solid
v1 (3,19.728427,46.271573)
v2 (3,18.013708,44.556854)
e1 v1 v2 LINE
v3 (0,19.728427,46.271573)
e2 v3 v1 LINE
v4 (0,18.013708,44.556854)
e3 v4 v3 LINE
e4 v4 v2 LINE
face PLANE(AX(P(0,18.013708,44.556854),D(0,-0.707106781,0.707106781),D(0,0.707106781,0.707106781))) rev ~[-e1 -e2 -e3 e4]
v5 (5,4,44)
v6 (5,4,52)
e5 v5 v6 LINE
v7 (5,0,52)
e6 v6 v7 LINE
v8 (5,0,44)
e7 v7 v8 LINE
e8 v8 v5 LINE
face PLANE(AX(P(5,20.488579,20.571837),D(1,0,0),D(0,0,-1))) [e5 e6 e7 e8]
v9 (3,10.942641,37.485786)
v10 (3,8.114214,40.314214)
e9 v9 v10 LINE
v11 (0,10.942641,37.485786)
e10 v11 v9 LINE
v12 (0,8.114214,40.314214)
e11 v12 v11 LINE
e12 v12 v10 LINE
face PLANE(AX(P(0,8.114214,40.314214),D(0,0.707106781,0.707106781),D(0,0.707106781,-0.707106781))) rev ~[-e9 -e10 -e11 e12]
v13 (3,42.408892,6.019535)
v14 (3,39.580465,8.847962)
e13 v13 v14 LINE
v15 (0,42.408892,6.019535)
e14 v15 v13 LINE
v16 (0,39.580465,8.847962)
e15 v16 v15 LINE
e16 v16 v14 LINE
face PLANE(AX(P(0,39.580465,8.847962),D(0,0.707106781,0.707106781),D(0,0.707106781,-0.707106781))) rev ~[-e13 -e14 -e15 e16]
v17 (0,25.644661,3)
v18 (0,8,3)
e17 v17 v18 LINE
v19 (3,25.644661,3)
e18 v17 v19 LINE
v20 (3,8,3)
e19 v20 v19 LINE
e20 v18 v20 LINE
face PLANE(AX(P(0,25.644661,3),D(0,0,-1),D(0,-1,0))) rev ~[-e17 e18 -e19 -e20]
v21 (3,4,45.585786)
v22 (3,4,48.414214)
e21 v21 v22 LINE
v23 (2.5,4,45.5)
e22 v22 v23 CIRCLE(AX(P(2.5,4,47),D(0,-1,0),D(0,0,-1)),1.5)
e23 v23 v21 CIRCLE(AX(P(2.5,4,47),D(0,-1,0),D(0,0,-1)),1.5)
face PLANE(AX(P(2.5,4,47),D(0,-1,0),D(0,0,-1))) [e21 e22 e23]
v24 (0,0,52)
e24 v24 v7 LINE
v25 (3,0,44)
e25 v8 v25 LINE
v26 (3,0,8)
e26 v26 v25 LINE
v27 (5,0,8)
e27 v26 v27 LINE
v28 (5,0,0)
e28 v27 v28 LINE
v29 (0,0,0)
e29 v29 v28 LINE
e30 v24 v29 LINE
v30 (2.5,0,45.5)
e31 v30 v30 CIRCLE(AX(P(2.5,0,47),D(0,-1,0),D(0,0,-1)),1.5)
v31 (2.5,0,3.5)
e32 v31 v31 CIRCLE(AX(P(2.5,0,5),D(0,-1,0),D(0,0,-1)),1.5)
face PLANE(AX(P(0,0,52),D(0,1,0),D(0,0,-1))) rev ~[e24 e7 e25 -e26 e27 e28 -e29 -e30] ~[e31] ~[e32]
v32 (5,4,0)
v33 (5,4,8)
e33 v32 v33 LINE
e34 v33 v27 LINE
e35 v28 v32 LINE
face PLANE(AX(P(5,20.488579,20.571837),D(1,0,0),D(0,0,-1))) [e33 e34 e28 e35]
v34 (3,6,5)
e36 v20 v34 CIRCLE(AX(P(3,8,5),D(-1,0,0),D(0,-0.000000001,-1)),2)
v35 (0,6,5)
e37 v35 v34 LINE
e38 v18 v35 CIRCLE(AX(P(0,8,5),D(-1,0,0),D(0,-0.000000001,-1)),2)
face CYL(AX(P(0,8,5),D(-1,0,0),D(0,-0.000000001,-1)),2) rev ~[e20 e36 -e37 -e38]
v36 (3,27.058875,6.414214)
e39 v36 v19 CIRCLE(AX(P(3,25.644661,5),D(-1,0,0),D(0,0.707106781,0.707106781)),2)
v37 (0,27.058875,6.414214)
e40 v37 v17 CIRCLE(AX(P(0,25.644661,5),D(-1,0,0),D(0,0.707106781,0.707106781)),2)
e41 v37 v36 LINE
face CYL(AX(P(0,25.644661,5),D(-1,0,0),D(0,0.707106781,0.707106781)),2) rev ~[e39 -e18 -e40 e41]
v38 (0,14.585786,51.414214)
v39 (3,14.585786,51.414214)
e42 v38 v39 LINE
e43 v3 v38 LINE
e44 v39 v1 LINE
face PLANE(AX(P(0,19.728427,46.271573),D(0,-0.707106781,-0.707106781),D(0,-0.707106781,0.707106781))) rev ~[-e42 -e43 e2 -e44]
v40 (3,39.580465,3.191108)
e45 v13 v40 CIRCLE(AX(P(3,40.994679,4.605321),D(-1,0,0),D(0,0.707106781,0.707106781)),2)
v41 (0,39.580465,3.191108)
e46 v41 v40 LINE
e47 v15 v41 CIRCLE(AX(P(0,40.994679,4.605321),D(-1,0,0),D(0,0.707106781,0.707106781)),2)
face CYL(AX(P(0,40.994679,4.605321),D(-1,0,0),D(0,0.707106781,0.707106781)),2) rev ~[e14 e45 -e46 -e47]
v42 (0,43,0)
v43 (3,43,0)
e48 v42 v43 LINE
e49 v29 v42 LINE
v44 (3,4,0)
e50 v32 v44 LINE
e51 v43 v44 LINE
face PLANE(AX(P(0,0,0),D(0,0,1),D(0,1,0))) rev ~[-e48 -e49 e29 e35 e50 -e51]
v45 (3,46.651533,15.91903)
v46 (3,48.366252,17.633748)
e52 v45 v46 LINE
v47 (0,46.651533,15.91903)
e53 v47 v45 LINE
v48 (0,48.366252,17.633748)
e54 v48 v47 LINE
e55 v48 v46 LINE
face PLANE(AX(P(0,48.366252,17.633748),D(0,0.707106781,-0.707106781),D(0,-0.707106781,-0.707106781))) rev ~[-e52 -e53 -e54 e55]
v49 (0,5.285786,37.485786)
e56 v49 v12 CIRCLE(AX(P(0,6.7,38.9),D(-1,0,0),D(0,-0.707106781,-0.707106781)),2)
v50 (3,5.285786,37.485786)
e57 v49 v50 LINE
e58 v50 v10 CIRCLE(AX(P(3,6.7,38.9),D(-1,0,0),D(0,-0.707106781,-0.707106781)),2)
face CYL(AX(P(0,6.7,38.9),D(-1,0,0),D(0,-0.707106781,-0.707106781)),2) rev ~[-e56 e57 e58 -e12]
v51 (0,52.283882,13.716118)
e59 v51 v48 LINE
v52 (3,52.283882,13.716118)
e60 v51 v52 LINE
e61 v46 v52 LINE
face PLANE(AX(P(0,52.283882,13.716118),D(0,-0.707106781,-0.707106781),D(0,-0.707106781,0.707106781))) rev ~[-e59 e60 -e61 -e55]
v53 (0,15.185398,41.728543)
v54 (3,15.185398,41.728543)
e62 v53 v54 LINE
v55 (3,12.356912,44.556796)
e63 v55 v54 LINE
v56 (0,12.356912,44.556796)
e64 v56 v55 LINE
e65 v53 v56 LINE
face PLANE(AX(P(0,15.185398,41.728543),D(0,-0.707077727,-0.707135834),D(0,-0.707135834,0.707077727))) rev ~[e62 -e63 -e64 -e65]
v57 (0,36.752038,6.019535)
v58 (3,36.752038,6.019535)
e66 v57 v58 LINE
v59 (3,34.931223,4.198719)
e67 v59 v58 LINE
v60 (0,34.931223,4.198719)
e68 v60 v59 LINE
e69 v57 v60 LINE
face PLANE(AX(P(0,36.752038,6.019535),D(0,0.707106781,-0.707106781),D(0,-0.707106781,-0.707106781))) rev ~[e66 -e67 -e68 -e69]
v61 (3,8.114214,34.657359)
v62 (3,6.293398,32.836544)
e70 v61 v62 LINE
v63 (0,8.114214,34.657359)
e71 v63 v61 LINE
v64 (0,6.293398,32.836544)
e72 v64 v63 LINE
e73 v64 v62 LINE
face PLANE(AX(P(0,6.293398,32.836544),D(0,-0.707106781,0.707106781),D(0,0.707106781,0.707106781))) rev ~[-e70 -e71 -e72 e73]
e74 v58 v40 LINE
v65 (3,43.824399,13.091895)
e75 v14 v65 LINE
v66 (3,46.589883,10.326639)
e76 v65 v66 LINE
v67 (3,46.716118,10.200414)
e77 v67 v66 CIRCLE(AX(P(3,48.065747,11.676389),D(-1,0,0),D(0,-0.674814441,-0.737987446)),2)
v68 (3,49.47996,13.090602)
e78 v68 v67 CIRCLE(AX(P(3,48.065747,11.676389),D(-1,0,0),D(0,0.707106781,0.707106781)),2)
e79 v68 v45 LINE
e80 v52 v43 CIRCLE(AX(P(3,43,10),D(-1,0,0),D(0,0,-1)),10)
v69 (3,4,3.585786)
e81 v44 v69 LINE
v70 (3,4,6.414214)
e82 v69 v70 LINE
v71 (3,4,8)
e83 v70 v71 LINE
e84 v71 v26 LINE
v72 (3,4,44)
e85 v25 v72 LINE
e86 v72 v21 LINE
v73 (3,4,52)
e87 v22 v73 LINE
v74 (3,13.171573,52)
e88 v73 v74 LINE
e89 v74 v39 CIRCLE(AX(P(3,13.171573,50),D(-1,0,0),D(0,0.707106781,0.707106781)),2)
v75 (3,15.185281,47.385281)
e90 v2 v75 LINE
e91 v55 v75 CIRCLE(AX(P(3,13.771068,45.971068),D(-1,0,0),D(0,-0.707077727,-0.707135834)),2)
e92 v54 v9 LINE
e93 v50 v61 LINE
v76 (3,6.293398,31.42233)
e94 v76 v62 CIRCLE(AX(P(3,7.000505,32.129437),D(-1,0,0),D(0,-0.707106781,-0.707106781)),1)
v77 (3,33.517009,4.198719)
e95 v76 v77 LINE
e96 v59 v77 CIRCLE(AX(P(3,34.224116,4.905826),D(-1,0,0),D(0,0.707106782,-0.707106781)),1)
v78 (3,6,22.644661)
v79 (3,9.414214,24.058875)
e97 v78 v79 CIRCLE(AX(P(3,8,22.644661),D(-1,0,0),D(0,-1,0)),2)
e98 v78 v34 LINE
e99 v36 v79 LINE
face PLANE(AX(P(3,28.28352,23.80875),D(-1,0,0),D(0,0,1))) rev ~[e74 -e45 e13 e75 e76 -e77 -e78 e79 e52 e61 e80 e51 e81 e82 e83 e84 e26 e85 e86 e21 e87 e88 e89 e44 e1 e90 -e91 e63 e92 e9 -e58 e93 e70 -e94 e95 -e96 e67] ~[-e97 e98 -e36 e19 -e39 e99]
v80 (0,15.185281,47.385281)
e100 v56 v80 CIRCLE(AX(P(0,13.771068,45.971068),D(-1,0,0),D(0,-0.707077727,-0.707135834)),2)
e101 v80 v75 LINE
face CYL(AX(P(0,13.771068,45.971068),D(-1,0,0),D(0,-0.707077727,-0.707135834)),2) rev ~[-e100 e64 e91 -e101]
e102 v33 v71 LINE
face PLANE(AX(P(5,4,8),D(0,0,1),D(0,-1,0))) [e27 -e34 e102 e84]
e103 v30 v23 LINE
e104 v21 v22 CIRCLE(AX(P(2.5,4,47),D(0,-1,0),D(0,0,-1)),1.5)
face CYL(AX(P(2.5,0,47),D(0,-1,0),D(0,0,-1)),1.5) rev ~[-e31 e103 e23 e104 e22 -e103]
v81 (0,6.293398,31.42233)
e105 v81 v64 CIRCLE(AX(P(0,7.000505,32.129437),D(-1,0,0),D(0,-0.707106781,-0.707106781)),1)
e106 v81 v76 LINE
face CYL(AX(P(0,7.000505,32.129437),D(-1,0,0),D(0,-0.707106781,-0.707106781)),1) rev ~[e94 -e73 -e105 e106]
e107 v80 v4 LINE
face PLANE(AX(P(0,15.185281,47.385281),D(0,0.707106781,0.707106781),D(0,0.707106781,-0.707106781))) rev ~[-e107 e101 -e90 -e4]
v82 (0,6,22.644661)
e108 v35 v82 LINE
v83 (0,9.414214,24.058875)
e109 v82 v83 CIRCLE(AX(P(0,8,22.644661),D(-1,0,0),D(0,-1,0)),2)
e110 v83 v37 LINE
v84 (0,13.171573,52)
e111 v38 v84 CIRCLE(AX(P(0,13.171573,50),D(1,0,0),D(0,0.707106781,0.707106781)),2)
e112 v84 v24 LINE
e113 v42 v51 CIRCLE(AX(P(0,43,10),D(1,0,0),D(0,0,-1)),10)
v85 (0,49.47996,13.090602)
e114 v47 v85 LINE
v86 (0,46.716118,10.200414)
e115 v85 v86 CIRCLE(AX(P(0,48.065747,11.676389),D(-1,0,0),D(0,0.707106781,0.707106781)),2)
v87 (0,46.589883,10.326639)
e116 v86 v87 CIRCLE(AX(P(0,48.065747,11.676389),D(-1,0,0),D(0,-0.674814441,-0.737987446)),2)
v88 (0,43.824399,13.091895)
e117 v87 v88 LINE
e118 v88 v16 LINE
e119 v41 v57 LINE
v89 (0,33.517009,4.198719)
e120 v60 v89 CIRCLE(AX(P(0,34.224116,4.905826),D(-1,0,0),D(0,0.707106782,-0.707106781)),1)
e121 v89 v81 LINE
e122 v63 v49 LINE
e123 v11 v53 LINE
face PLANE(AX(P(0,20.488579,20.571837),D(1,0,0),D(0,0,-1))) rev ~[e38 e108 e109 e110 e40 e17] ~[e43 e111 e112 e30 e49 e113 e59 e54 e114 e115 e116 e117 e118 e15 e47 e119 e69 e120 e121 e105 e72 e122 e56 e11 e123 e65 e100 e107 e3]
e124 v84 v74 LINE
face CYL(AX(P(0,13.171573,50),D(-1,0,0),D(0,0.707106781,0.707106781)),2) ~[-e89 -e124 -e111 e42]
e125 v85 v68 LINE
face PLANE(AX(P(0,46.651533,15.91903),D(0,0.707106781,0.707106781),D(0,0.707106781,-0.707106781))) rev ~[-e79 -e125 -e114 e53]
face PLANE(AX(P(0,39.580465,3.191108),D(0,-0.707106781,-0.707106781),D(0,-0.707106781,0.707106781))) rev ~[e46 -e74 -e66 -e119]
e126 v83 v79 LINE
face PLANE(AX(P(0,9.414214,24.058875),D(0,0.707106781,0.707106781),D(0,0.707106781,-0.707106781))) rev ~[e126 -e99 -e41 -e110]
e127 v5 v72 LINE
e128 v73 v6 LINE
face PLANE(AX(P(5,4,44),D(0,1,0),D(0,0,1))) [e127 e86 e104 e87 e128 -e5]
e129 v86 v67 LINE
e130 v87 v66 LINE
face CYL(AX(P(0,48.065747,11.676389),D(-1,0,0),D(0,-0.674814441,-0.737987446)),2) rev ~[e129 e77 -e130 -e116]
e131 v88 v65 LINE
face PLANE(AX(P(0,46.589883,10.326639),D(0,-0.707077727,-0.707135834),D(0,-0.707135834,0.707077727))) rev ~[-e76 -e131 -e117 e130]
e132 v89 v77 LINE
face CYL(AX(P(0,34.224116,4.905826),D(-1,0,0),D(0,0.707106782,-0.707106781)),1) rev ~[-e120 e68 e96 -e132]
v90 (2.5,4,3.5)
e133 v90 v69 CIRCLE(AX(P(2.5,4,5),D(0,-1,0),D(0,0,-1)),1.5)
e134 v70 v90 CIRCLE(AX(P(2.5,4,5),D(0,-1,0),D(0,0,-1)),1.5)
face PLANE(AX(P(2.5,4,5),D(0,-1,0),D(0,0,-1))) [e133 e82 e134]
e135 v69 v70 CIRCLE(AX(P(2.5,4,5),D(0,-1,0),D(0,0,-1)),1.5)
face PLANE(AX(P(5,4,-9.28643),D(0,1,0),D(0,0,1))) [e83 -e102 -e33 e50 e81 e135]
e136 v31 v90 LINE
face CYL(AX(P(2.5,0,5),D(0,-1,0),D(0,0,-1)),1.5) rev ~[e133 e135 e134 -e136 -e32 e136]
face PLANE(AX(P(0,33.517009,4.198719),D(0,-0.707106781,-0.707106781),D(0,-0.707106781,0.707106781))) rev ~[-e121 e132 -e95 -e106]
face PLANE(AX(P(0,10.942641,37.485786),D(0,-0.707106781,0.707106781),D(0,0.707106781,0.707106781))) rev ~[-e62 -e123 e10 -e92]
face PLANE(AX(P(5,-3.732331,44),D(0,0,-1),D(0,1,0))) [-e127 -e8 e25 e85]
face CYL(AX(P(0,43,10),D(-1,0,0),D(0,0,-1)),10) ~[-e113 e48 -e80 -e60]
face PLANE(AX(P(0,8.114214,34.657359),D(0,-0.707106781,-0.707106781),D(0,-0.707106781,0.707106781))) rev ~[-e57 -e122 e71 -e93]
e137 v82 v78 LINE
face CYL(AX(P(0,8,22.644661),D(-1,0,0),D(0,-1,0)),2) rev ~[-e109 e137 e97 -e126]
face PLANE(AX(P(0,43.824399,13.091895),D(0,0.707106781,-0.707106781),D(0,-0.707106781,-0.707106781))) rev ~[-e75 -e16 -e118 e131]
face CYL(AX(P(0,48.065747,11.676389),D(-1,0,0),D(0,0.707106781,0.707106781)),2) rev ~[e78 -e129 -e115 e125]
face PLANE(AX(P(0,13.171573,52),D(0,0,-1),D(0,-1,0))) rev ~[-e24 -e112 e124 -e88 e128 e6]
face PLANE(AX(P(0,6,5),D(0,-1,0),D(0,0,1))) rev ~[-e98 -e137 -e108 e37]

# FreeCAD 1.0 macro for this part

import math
import FreeCAD as App
import Part
import Sketcher
from FreeCAD import Vector


def add_polygon(sketch, points):
    """Adds a closed chain of lines whose ends are joined by coincident constraints."""
    first, n = sketch.GeometryCount, len(points)
    for a, b in zip(points, points[1:] + points[:1]):
        sketch.addGeometry(Part.LineSegment(App.Vector(*a, 0), App.Vector(*b, 0)), False)
    for i in range(n):
        sketch.addConstraint(Sketcher.Constraint("Coincident", first + i, 2, first + (i + 1) % n, 1))

doc = App.newDocument("Part")
body = doc.addObject("PartDesign::Body", "Body")

# Sketch on YZ plane
sketch1 = body.newObject("Sketcher::SketchObject", "Sketch")
sketch1.AttachmentSupport = (doc.getObject("YZ_Plane"), [""])
sketch1.MapMode = "FlatFace"
sketch1.addGeometry([
    Part.LineSegment(Vector(0, 52, 0), Vector(0, 0, 0)),  # 0
    Part.LineSegment(Vector(0, 0, 0), Vector(43, 0, 0)),  # 1
    Part.ArcOfCircle(Part.Circle(Vector(43, 10, 0), Vector(0, 0, 1), 10), math.radians(-90), math.radians(22)),  # 2
    Part.LineSegment(Vector(52.28, 13.72, 0), Vector(48.37, 17.63, 0)),  # 3
    Part.LineSegment(Vector(48.37, 17.63, 0), Vector(46.65, 15.92, 0)),  # 4
    Part.LineSegment(Vector(46.65, 15.92, 0), Vector(49.48, 13.09, 0)),  # 5
    Part.ArcOfCircle(Part.Circle(Vector(48.07, 11.68, 0), Vector(0, 0, 1), 2), math.radians(-132), math.radians(45)),  # 6
    Part.ArcOfCircle(Part.Circle(Vector(48.07, 11.68, 0), Vector(0, 0, 1), 2), math.radians(-137.56), math.radians(-132.44)),  # 7
    Part.LineSegment(Vector(46.59, 10.33, 0), Vector(43.82, 13.09, 0)),  # 8
    Part.LineSegment(Vector(43.82, 13.09, 0), Vector(39.58, 8.85, 0)),  # 9
    Part.LineSegment(Vector(39.58, 8.85, 0), Vector(42.41, 6.02, 0)),  # 10
    Part.ArcOfCircle(Part.Circle(Vector(40.99, 4.61, 0), Vector(0, 0, 1), 2), math.radians(-135), math.radians(45)),  # 11
    Part.LineSegment(Vector(39.58, 3.19, 0), Vector(36.75, 6.02, 0)),  # 12
    Part.LineSegment(Vector(36.75, 6.02, 0), Vector(34.93, 4.2, 0)),  # 13
    Part.ArcOfCircle(Part.Circle(Vector(34.22, 4.91, 0), Vector(0, 0, 1), 1), math.radians(-135), math.radians(-45)),  # 14
    Part.LineSegment(Vector(33.52, 4.2, 0), Vector(6.29, 31.42, 0)),  # 15
    Part.ArcOfCircle(Part.Circle(Vector(7, 32.13, 0), Vector(0, 0, 1), 1), math.radians(135), math.radians(225)),  # 16
    Part.LineSegment(Vector(6.29, 32.84, 0), Vector(8.11, 34.66, 0)),  # 17
    Part.LineSegment(Vector(8.11, 34.66, 0), Vector(5.29, 37.49, 0)),  # 18
    Part.ArcOfCircle(Part.Circle(Vector(6.7, 38.9, 0), Vector(0, 0, 1), 2), math.radians(45), math.radians(225)),  # 19
    Part.LineSegment(Vector(8.11, 40.31, 0), Vector(10.94, 37.49, 0)),  # 20
    Part.LineSegment(Vector(10.94, 37.49, 0), Vector(15.19, 41.73, 0)),  # 21
    Part.LineSegment(Vector(15.19, 41.73, 0), Vector(12.36, 44.56, 0)),  # 22
    Part.ArcOfCircle(Part.Circle(Vector(13.77, 45.97, 0), Vector(0, 0, 1), 2), math.radians(45), math.radians(225)),  # 23
    Part.LineSegment(Vector(15.19, 47.39, 0), Vector(18.01, 44.56, 0)),  # 24
    Part.LineSegment(Vector(18.01, 44.56, 0), Vector(19.73, 46.27, 0)),  # 25
    Part.LineSegment(Vector(19.73, 46.27, 0), Vector(14.59, 51.41, 0)),  # 26
    Part.ArcOfCircle(Part.Circle(Vector(13.17, 50, 0), Vector(0, 0, 1), 2), math.radians(45), math.radians(90)),  # 27
    Part.LineSegment(Vector(13.17, 52, 0), Vector(0, 52, 0)),  # 28
    Part.ArcOfCircle(Part.Circle(Vector(8, 22.64, 0), Vector(0, 0, 1), 2), math.radians(45), math.radians(180)),  # 29
    Part.LineSegment(Vector(9.41, 24.06, 0), Vector(27.06, 6.41, 0)),  # 30
    Part.ArcOfCircle(Part.Circle(Vector(25.64, 5, 0), Vector(0, 0, 1), 2), math.radians(-90), math.radians(45)),  # 31
    Part.LineSegment(Vector(25.64, 3, 0), Vector(8, 3, 0)),  # 32
    Part.ArcOfCircle(Part.Circle(Vector(8, 5, 0), Vector(0, 0, 1), 2), math.radians(-180), math.radians(-90)),  # 33
    Part.LineSegment(Vector(6, 5, 0), Vector(6, 22.64, 0)),  # 34
], False)
sketch1.addConstraint([
    Sketcher.Constraint("Coincident", 0, 2, 1, 1),
    Sketcher.Constraint("Tangent", 1, 2, 2, 1),
    Sketcher.Constraint("Coincident", 2, 2, 3, 1),
    Sketcher.Constraint("Coincident", 3, 2, 4, 1),
    Sketcher.Constraint("Coincident", 4, 2, 5, 1),
    Sketcher.Constraint("Tangent", 5, 2, 6, 2),
    Sketcher.Constraint("Tangent", 6, 1, 7, 2),
    Sketcher.Constraint("Coincident", 7, 1, 8, 1),
    Sketcher.Constraint("Coincident", 8, 2, 9, 1),
    Sketcher.Constraint("Coincident", 9, 2, 10, 1),
    Sketcher.Constraint("Tangent", 10, 2, 11, 2),
    Sketcher.Constraint("Tangent", 11, 1, 12, 1),
    Sketcher.Constraint("Coincident", 12, 2, 13, 1),
    Sketcher.Constraint("Tangent", 13, 2, 14, 2),
    Sketcher.Constraint("Tangent", 14, 1, 15, 1),
    Sketcher.Constraint("Tangent", 15, 2, 16, 2),
    Sketcher.Constraint("Tangent", 16, 1, 17, 1),
    Sketcher.Constraint("Coincident", 17, 2, 18, 1),
    Sketcher.Constraint("Tangent", 18, 2, 19, 2),
    Sketcher.Constraint("Tangent", 19, 1, 20, 1),
    Sketcher.Constraint("Coincident", 20, 2, 21, 1),
    Sketcher.Constraint("Coincident", 21, 2, 22, 1),
    Sketcher.Constraint("Tangent", 22, 2, 23, 2),
    Sketcher.Constraint("Tangent", 23, 1, 24, 1),
    Sketcher.Constraint("Coincident", 24, 2, 25, 1),
    Sketcher.Constraint("Coincident", 25, 2, 26, 1),
    Sketcher.Constraint("Tangent", 26, 2, 27, 1),
    Sketcher.Constraint("Tangent", 27, 2, 28, 1),
    Sketcher.Constraint("Coincident", 28, 2, 0, 1),
    Sketcher.Constraint("Tangent", 29, 1, 30, 1),
    Sketcher.Constraint("Tangent", 30, 2, 31, 2),
    Sketcher.Constraint("Tangent", 31, 1, 32, 1),
    Sketcher.Constraint("Tangent", 32, 2, 33, 2),
    Sketcher.Constraint("Tangent", 33, 1, 34, 1),
    Sketcher.Constraint("Tangent", 34, 2, 29, 2),
    Sketcher.Constraint("Vertical", 0),
    Sketcher.Constraint("Horizontal", 1),
    Sketcher.Constraint("Horizontal", 28),
    Sketcher.Constraint("Horizontal", 32),
    Sketcher.Constraint("Vertical", 34),
    Sketcher.Constraint("Coincident", 0, 2, -1, 1),
    Sketcher.Constraint("Equal", 6, 7),
    Sketcher.Constraint("Equal", 7, 11),
    Sketcher.Constraint("Equal", 14, 16),
    Sketcher.Constraint("Equal", 11, 19),
    Sketcher.Constraint("Equal", 19, 23),
    Sketcher.Constraint("Equal", 23, 27),
    Sketcher.Constraint("Equal", 27, 29),
    Sketcher.Constraint("Equal", 29, 31),
    Sketcher.Constraint("Equal", 31, 33),
    Sketcher.Constraint("Perpendicular", 3, 4),
    Sketcher.Constraint("Perpendicular", 4, 5),
    Sketcher.Constraint("Perpendicular", 5, 9),
    Sketcher.Constraint("Perpendicular", 9, 10),
    Sketcher.Constraint("Parallel", 10, 12),
    Sketcher.Constraint("Perpendicular", 12, 13),
    Sketcher.Constraint("Perpendicular", 13, 15),
    Sketcher.Constraint("Perpendicular", 15, 17),
    Sketcher.Constraint("Perpendicular", 17, 18),
    Sketcher.Constraint("Parallel", 18, 20),
    Sketcher.Constraint("Perpendicular", 20, 21),
    Sketcher.Constraint("Parallel", 8, 22),
    Sketcher.Constraint("Perpendicular", 21, 24),
    Sketcher.Constraint("Perpendicular", 24, 25),
    Sketcher.Constraint("Perpendicular", 25, 26),
    Sketcher.Constraint("Parallel", 26, 30),
    Sketcher.Constraint("Horizontal", 10, 2, 12, 2),
    Sketcher.Constraint("Horizontal", 13, 2, 14, 1),
    Sketcher.Constraint("Horizontal", 18, 2, 20, 2),
    Sketcher.Constraint("Vertical", 9, 2, 11, 1),
    Sketcher.Constraint("Vertical", 17, 2, 19, 1),
    Sketcher.Constraint("Equal", 5, 10),
    Sketcher.Constraint("Equal", 13, 17),
    Sketcher.Constraint("Equal", 20, 24),
    Sketcher.Constraint("Equal", 4, 25),
    Sketcher.Constraint("Radius", 2, 10.0),
    Sketcher.Constraint("Radius", 6, 2.0),
    Sketcher.Constraint("Radius", 14, 1.0),
    Sketcher.Constraint("DistanceX", 1, 1, 1, 2, 43.0),
    Sketcher.Constraint("DistanceY", 0, 2, 0, 1, 52.0),
    Sketcher.Constraint("DistanceX", -1, 1, 29, 3, 8.0),
    Sketcher.Constraint("DistanceY", -1, 1, 31, 3, 5.0),
    Sketcher.Constraint("Distance", 15, 38.5),
    Sketcher.Constraint("DistanceX", -1, 1, 19, 3, 6.7),
    Sketcher.Constraint("DistanceY", -1, 1, 19, 3, 38.9),
    Sketcher.Constraint("DistanceX", 32, 2, 32, 1, 17.644661),
    Sketcher.Constraint("DistanceX", -1, 1, 8, 2, 43.824399),
    Sketcher.Constraint("DistanceX", -1, 1, 15, 2, 6.293398),
    Sketcher.Constraint("DistanceX", 19, 1, 22, 2, 4.242699),
    Sketcher.Constraint("Distance", 4, 2.424978),
    Sketcher.Constraint("DistanceX", 28, 2, 28, 1, 13.171573),
    Sketcher.Constraint("DistanceY", -1, 1, 6, 3, 11.676389),
    Sketcher.Constraint("DistanceX", -1, 1, 3, 2, 48.366252),
    Sketcher.Constraint("DistanceY", -1, 1, 7, 1, 10.326639),
    Sketcher.Constraint("DistanceX", 6, 1, 6, 3, 1.349629),
])
pad1 = body.newObject("PartDesign::Pad", "Pad")
pad1.Profile = sketch1
pad1.Length = 5

# Sketch on YZ plane
sketch2 = body.newObject("Sketcher::SketchObject", "Sketch001")
sketch2.AttachmentSupport = (doc.getObject("YZ_Plane"), [""])
sketch2.MapMode = "FlatFace"
sketch2.AttachmentOffset = App.Placement(Vector(0, 0, 5), App.Rotation())
add_polygon(sketch2, [(4, 8), (4, -9), (58, -9), (58, 57), (4, 57), (4, 44), (-4, 44), (-4, 8)])  # lines 0-7
sketch2.addConstraint([
    Sketcher.Constraint("Vertical", 0),
    Sketcher.Constraint("Horizontal", 1),
    Sketcher.Constraint("Vertical", 2),
    Sketcher.Constraint("Horizontal", 3),
    Sketcher.Constraint("Vertical", 4),
    Sketcher.Constraint("Horizontal", 5),
    Sketcher.Constraint("Vertical", 6),
    Sketcher.Constraint("Horizontal", 7),
    Sketcher.Constraint("Vertical", 0, 2, 3, 2),
    Sketcher.Constraint("DistanceY", 6, 2, 6, 1, 36.0),
    Sketcher.Constraint("DistanceX", -1, 1, 0, 2, 4.0),
    Sketcher.Constraint("DistanceY", -1, 1, 4, 2, 44.0),
    Sketcher.Constraint("DistanceX", 1, 1, 1, 2, 54.494522),
    Sketcher.Constraint("DistanceX", 5, 2, 5, 1, 7.732331),
    Sketcher.Constraint("DistanceY", 0, 2, 0, 1, 17.28643),
    Sketcher.Constraint("DistanceY", 2, 1, 2, 2, 65.908915),
])
pocket1 = body.newObject("PartDesign::Pocket", "Pocket")
pocket1.Profile = sketch2
pocket1.Length = 2

# Sketch on XZ plane
sketch3 = body.newObject("Sketcher::SketchObject", "Sketch002")
sketch3.AttachmentSupport = (doc.getObject("XZ_Plane"), [""])
sketch3.MapMode = "FlatFace"
sketch3.addGeometry([
    Part.Circle(Vector(2.5, 47, 0), Vector(0, 0, 1), 1.5),
    Part.Circle(Vector(2.5, 5, 0), Vector(0, 0, 1), 1.5),
], False)
sketch3.addConstraint([
    Sketcher.Constraint("Equal", 0, 1),
    Sketcher.Constraint("Vertical", 0, 3, 1, 3),
    Sketcher.Constraint("Diameter", 0, 3.0),
    Sketcher.Constraint("DistanceY", -1, 1, 0, 3, 47.0),
    Sketcher.Constraint("DistanceY", -1, 1, 1, 3, 5.0),
    Sketcher.Constraint("DistanceX", -1, 1, 0, 3, 2.5),
])
pocket2 = body.newObject("PartDesign::Pocket", "Pocket001")
pocket2.Profile = sketch3
pocket2.Length = 4

doc.recompute()
